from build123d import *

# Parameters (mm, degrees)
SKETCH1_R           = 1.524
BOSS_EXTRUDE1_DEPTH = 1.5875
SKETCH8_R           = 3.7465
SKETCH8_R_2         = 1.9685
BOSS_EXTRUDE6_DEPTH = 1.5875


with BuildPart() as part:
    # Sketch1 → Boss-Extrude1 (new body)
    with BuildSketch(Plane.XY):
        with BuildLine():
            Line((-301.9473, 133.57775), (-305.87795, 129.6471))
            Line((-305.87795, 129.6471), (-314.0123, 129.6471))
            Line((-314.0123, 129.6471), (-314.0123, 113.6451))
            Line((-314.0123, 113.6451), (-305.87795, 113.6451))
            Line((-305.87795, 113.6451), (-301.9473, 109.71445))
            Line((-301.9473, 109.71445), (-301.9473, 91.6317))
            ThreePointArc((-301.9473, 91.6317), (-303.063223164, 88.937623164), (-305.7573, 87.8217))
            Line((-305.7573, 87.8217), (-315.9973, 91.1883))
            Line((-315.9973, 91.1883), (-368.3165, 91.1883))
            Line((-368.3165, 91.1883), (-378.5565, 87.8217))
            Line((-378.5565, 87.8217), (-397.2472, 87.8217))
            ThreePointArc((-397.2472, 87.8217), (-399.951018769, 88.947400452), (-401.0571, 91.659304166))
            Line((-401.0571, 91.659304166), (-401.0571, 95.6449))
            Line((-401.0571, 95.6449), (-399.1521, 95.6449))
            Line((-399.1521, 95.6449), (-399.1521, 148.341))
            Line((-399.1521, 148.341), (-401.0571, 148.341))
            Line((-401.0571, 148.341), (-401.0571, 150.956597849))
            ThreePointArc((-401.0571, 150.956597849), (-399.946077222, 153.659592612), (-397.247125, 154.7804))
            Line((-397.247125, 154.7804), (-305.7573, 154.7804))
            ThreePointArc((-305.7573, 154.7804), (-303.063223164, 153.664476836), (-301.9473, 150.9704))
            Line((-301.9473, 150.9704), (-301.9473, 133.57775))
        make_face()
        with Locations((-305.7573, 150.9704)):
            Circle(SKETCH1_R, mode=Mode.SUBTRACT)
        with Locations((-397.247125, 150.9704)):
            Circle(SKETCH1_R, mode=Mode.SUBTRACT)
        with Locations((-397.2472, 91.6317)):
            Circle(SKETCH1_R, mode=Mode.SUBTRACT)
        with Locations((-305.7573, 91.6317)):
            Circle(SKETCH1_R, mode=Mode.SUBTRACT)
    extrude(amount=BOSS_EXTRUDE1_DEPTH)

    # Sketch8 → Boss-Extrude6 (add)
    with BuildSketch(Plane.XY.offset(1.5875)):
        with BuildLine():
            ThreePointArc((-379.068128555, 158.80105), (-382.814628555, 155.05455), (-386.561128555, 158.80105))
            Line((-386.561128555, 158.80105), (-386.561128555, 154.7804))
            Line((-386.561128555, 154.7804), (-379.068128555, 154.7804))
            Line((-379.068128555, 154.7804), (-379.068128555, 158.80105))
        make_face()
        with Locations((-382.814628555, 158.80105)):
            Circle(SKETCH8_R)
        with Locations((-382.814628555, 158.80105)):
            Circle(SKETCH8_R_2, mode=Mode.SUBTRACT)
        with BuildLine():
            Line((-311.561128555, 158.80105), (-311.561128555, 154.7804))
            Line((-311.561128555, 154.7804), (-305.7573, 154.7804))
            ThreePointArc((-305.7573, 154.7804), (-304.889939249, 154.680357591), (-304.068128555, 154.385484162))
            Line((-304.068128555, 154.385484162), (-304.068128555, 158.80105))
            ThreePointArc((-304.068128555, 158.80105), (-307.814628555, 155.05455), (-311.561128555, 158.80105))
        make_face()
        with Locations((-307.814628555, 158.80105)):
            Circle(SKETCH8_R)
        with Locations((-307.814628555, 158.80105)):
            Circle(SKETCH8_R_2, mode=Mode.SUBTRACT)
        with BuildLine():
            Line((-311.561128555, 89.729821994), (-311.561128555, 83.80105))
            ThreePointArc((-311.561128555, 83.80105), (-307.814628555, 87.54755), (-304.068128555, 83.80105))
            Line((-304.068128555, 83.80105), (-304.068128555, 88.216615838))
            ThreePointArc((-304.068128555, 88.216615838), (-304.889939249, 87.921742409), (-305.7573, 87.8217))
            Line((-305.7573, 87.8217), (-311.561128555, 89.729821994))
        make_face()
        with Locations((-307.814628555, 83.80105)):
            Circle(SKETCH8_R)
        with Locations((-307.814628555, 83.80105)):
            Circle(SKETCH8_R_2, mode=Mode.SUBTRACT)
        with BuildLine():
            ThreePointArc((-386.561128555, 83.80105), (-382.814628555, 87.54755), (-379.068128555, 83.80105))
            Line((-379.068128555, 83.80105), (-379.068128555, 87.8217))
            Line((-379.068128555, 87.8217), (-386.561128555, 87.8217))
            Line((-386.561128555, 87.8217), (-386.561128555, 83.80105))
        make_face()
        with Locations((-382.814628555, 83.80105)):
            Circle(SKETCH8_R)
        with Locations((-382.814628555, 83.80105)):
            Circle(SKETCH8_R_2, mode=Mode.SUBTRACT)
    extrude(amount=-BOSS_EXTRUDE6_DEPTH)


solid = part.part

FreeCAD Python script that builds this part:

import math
import FreeCAD as App
import Part
import Sketcher
Q = App.Units.Quantity

doc = App.newDocument("Part")
body = doc.addObject("PartDesign::Body", "Body")

# Sketch on XY plane
sketch1 = doc.addObject("Sketcher::SketchObject", "Sketch")
body.addObject(sketch1)
sketch1.AttachmentSupport = (doc.XY_Plane, [""])
sketch1.MapMode = "FlatFace"
sketch1.addGeometry([
    Part.LineSegment(App.Vector(-305.87795, 129.6471, 0), App.Vector(-301.9473, 133.57775, 0)),  # 0
    Part.LineSegment(App.Vector(-301.9473, 133.57775, 0), App.Vector(-301.9473, 150.9704, 0)),  # 1
    Part.ArcOfCircle(Part.Circle(App.Vector(-305.7573, 150.9704, 0), App.Vector(0, 0, 1), 3.81), math.radians(0), math.radians(90)),  # 2
    Part.LineSegment(App.Vector(-305.7573, 154.7804, 0), App.Vector(-397.247125, 154.7804, 0)),  # 3
    Part.ArcOfCircle(Part.Circle(App.Vector(-397.247125, 150.9704, 0), App.Vector(0, 0, 1), 3.81), math.radians(90), math.radians(180.207561)),  # 4
    Part.LineSegment(App.Vector(-401.0571, 150.956598, 0), App.Vector(-401.0571, 148.341, 0)),  # 5
    Part.LineSegment(App.Vector(-401.0571, 148.341, 0), App.Vector(-399.1521, 148.341, 0)),  # 6
    Part.LineSegment(App.Vector(-399.1521, 148.341, 0), App.Vector(-399.1521, 95.6449, 0)),  # 7
    Part.LineSegment(App.Vector(-399.1521, 95.6449, 0), App.Vector(-401.0571, 95.6449, 0)),  # 8
    Part.LineSegment(App.Vector(-401.0571, 95.6449, 0), App.Vector(-401.0571, 91.659304, 0)),  # 9
    Part.ArcOfCircle(Part.Circle(App.Vector(-397.2472, 91.6317, 0), App.Vector(0, 0, 1), 3.81), math.radians(179.584878), math.radians(270)),  # 10
    Part.LineSegment(App.Vector(-397.2472, 87.8217, 0), App.Vector(-378.5565, 87.8217, 0)),  # 11
    Part.LineSegment(App.Vector(-378.5565, 87.8217, 0), App.Vector(-368.3165, 91.1883, 0)),  # 12
    Part.LineSegment(App.Vector(-368.3165, 91.1883, 0), App.Vector(-315.9973, 91.1883, 0)),  # 13
    Part.LineSegment(App.Vector(-315.9973, 91.1883, 0), App.Vector(-305.7573, 87.8217, 0)),  # 14
    Part.ArcOfCircle(Part.Circle(App.Vector(-305.7573, 91.6317, 0), App.Vector(0, 0, 1), 3.81), math.radians(-90), math.radians(0)),  # 15
    Part.LineSegment(App.Vector(-301.9473, 91.6317, 0), App.Vector(-301.9473, 109.71445, 0)),  # 16
    Part.LineSegment(App.Vector(-301.9473, 109.71445, 0), App.Vector(-305.87795, 113.6451, 0)),  # 17
    Part.LineSegment(App.Vector(-305.87795, 113.6451, 0), App.Vector(-314.0123, 113.6451, 0)),  # 18
    Part.LineSegment(App.Vector(-314.0123, 113.6451, 0), App.Vector(-314.0123, 129.6471, 0)),  # 19
    Part.LineSegment(App.Vector(-314.0123, 129.6471, 0), App.Vector(-305.87795, 129.6471, 0)),  # 20
    Part.Circle(App.Vector(-305.7573, 91.6317, 0), App.Vector(0, 0, 1), 1.524),  # 21
    Part.Circle(App.Vector(-397.2472, 91.6317, 0), App.Vector(0, 0, 1), 1.524),  # 22
    Part.Circle(App.Vector(-305.7573, 150.9704, 0), App.Vector(0, 0, 1), 1.524),  # 23
    Part.Circle(App.Vector(-397.247125, 150.9704, 0), App.Vector(0, 0, 1), 1.524),  # 24
], False)
sketch1.addConstraint([
    Sketcher.Constraint("Coincident", 0, 2, 1, 1),
    Sketcher.Constraint("Tangent", 1, 2, 2, 1),
    Sketcher.Constraint("Tangent", 2, 2, 3, 1),
    Sketcher.Constraint("Tangent", 3, 2, 4, 1),
    Sketcher.Constraint("Coincident", 4, 2, 5, 1),
    Sketcher.Constraint("Coincident", 5, 2, 6, 1),
    Sketcher.Constraint("Coincident", 6, 2, 7, 1),
    Sketcher.Constraint("Coincident", 7, 2, 8, 1),
    Sketcher.Constraint("Coincident", 8, 2, 9, 1),
    Sketcher.Constraint("Coincident", 9, 2, 10, 1),
    Sketcher.Constraint("Tangent", 10, 2, 11, 1),
    Sketcher.Constraint("Coincident", 11, 2, 12, 1),
    Sketcher.Constraint("Coincident", 12, 2, 13, 1),
    Sketcher.Constraint("Coincident", 13, 2, 14, 1),
    Sketcher.Constraint("Coincident", 14, 2, 15, 1),
    Sketcher.Constraint("Tangent", 15, 2, 16, 1),
    Sketcher.Constraint("Coincident", 16, 2, 17, 1),
    Sketcher.Constraint("Coincident", 17, 2, 18, 1),
    Sketcher.Constraint("Coincident", 18, 2, 19, 1),
    Sketcher.Constraint("Coincident", 19, 2, 20, 1),
    Sketcher.Constraint("Coincident", 20, 2, 0, 1),
    Sketcher.Constraint("Vertical", 1),
    Sketcher.Constraint("Horizontal", 3),
    Sketcher.Constraint("Vertical", 5),
    Sketcher.Constraint("Horizontal", 6),
    Sketcher.Constraint("Vertical", 7),
    Sketcher.Constraint("Horizontal", 8),
    Sketcher.Constraint("Vertical", 9),
    Sketcher.Constraint("Horizontal", 11),
    Sketcher.Constraint("Horizontal", 13),
    Sketcher.Constraint("Vertical", 16),
    Sketcher.Constraint("Horizontal", 18),
    Sketcher.Constraint("Vertical", 19),
    Sketcher.Constraint("Horizontal", 20),
    Sketcher.Constraint("Coincident", 21, 3, 15, 3),
    Sketcher.Constraint("Coincident", 22, 3, 10, 3),
    Sketcher.Constraint("Coincident", 23, 3, 2, 3),
    Sketcher.Constraint("Coincident", 24, 3, 4, 3),
    Sketcher.Constraint("Equal", 2, 4),
    Sketcher.Constraint("Equal", 4, 10),
    Sketcher.Constraint("Equal", 10, 15),
    Sketcher.Constraint("Equal", 21, 22),
    Sketcher.Constraint("Equal", 22, 23),
    Sketcher.Constraint("Equal", 23, 24),
    Sketcher.Constraint("Perpendicular", 0, 17),
    Sketcher.Constraint("Horizontal", 10, 3, 15, 3),
    Sketcher.Constraint("Vertical", 2, 3, 15, 3),
    Sketcher.Constraint("Vertical", 5, 2, 8, 2),
    Sketcher.Constraint("Vertical", 2, 2, 14, 2),
    Sketcher.Constraint("Vertical", 17, 2, 20, 2),
    Sketcher.Constraint("Equal", 12, 14),
    Sketcher.Constraint("Equal", 0, 17),
    Sketcher.Constraint("Diameter", 21, Q("0.12 in")),
    Sketcher.Constraint("Radius", 2, Q("0.15 in")),
    Sketcher.Constraint("DistanceY", 19, 1, 19, 2, Q("0.63 in")),
    Sketcher.Constraint("DistanceX", 6, 1, 6, 2, Q("0.075 in")),
    Sketcher.Constraint("DistanceY", 10, 3, 7, 2, Q("0.158 in")),
    Sketcher.Constraint("DistanceX", 7, 2, 12, 2, Q("1.214 in")),
    Sketcher.Constraint("DistanceX", 18, 2, 16, 2, Q("0.475 in")),
    Sketcher.Constraint("DistanceX", 11, 1, 11, 2, Q("18.6907 mm")),
    Sketcher.Constraint("DistanceX", 13, 1, 13, 2, Q("52.3192 mm")),
    Sketcher.Constraint("DistanceY", 7, 2, 7, 1, Q("52.6961 mm")),
    Sketcher.Constraint("DistanceY", 19, 2, 2, 3, Q("0.8395 in")),
    Sketcher.Constraint("DistanceX", 18, 2, 18, 1, Q("8.13435 mm")),
    Sketcher.Constraint("DistanceY", 16, 1, 16, 2, Q("18.08275 mm")),
    Sketcher.Constraint("DistanceX", 2, 3, -1, 1, Q("305.7573 mm")),
    Sketcher.Constraint("DistanceY", -1, 1, 2, 3, Q("150.9704 mm")),
    Sketcher.Constraint("DistanceX", 10, 3, -1, 1, Q("397.2472 mm")),
    Sketcher.Constraint("DistanceY", -1, 1, 12, 2, Q("91.1883 mm")),
    Sketcher.Constraint("DistanceX", 3, 2, 3, 1, Q("91.489825 mm")),
])
pad1 = doc.addObject("PartDesign::Pad", "Pad")
body.addObject(pad1)
pad1.Profile = sketch1
pad1.Length = Q("0.0625 in")

# Sketch on XY plane
sketch2 = doc.addObject("Sketcher::SketchObject", "Sketch001")
body.addObject(sketch2)
sketch2.AttachmentSupport = (doc.XY_Plane, [""])
sketch2.MapMode = "FlatFace"
sketch2.AttachmentOffset = App.Placement(App.Vector(0, 0, 0.0625 * 25.4), App.Rotation())
sketch2.addGeometry([
    Part.LineSegment(App.Vector(-386.6, 158.8, 0), App.Vector(-386.6, 154.8, 0)),  # 0
    Part.LineSegment(App.Vector(-386.6, 154.8, 0), App.Vector(-379.1, 154.8, 0)),  # 1
    Part.LineSegment(App.Vector(-379.1, 154.8, 0), App.Vector(-379.1, 158.8, 0)),  # 2
    Part.ArcOfCircle(Part.Circle(App.Vector(-382.8, 158.8, 0), App.Vector(0, 0, 1), 3.7), math.radians(0), math.radians(180)),  # 3
    Part.Circle(App.Vector(-382.8, 158.8, 0), App.Vector(0, 0, 1), 2),  # 4
    Part.LineSegment(App.Vector(-311.6, 158.8, 0), App.Vector(-311.6, 154.8, 0)),  # 5
    Part.LineSegment(App.Vector(-311.6, 154.8, 0), App.Vector(-305.8, 154.8, 0)),  # 6
    Part.ArcOfCircle(Part.Circle(App.Vector(-305.8, 151, 0), App.Vector(0, 0, 1), 3.8), math.radians(64), math.radians(90)),  # 7
    Part.LineSegment(App.Vector(-304.1, 154.4, 0), App.Vector(-304.1, 158.8, 0)),  # 8
    Part.ArcOfCircle(Part.Circle(App.Vector(-307.8, 158.8, 0), App.Vector(0, 0, 1), 3.7), math.radians(0), math.radians(180)),  # 9
    Part.Circle(App.Vector(-307.8, 158.8, 0), App.Vector(0, 0, 1), 2),  # 10
    Part.LineSegment(App.Vector(-311.6, 89.7, 0), App.Vector(-311.6, 83.8, 0)),  # 11
    Part.ArcOfCircle(Part.Circle(App.Vector(-307.8, 83.8, 0), App.Vector(0, 0, 1), 3.7), math.radians(180), math.radians(360)),  # 12
    Part.LineSegment(App.Vector(-304.1, 83.8, 0), App.Vector(-304.1, 88.2, 0)),  # 13
    Part.ArcOfCircle(Part.Circle(App.Vector(-305.8, 91.6, 0), App.Vector(0, 0, 1), 3.8), math.radians(-90), math.radians(-64)),  # 14
    Part.LineSegment(App.Vector(-305.8, 87.8, 0), App.Vector(-311.6, 89.7, 0)),  # 15
    Part.Circle(App.Vector(-307.8, 83.8, 0), App.Vector(0, 0, 1), 2),  # 16
    Part.LineSegment(App.Vector(-379.1, 83.8, 0), App.Vector(-379.1, 87.8, 0)),  # 17
    Part.LineSegment(App.Vector(-379.1, 87.8, 0), App.Vector(-386.6, 87.8, 0)),  # 18
    Part.LineSegment(App.Vector(-386.6, 87.8, 0), App.Vector(-386.6, 83.8, 0)),  # 19
    Part.ArcOfCircle(Part.Circle(App.Vector(-382.8, 83.8, 0), App.Vector(0, 0, 1), 3.7), math.radians(180), math.radians(360)),  # 20
    Part.Circle(App.Vector(-382.8, 83.8, 0), App.Vector(0, 0, 1), 2),  # 21
], False)
sketch2.addConstraint([
    Sketcher.Constraint("Coincident", 0, 2, 1, 1),
    Sketcher.Constraint("Coincident", 1, 2, 2, 1),
    Sketcher.Constraint("Tangent", 2, 2, 3, 1),
    Sketcher.Constraint("Tangent", 3, 2, 0, 1),
    Sketcher.Constraint("Coincident", 5, 2, 6, 1),
    Sketcher.Constraint("Tangent", 6, 2, 7, 2),
    Sketcher.Constraint("Coincident", 7, 1, 8, 1),
    Sketcher.Constraint("Tangent", 8, 2, 9, 1),
    Sketcher.Constraint("Tangent", 9, 2, 5, 1),
    Sketcher.Constraint("Tangent", 11, 2, 12, 1),
    Sketcher.Constraint("Tangent", 12, 2, 13, 1),
    Sketcher.Constraint("Coincident", 13, 2, 14, 2),
    Sketcher.Constraint("Coincident", 14, 1, 15, 1),
    Sketcher.Constraint("Coincident", 15, 2, 11, 1),
    Sketcher.Constraint("Coincident", 17, 2, 18, 1),
    Sketcher.Constraint("Coincident", 18, 2, 19, 1),
    Sketcher.Constraint("Tangent", 19, 2, 20, 1),
    Sketcher.Constraint("Tangent", 20, 2, 17, 1),
    Sketcher.Constraint("Vertical", 0),
    Sketcher.Constraint("Horizontal", 1),
    Sketcher.Constraint("Vertical", 2),
    Sketcher.Constraint("Vertical", 5),
    Sketcher.Constraint("Horizontal", 6),
    Sketcher.Constraint("Vertical", 8),
    Sketcher.Constraint("Vertical", 11),
    Sketcher.Constraint("Vertical", 13),
    Sketcher.Constraint("Vertical", 17),
    Sketcher.Constraint("Horizontal", 18),
    Sketcher.Constraint("Vertical", 19),
    Sketcher.Constraint("Coincident", 4, 3, 3, 3),
    Sketcher.Constraint("Coincident", 10, 3, 9, 3),
    Sketcher.Constraint("Coincident", 16, 3, 12, 3),
    Sketcher.Constraint("Coincident", 21, 3, 20, 3),
    Sketcher.Constraint("Equal", 3, 9),
    Sketcher.Constraint("Equal", 4, 10),
    Sketcher.Constraint("Equal", 9, 12),
    Sketcher.Constraint("Equal", 7, 14),
    Sketcher.Constraint("Equal", 10, 16),
    Sketcher.Constraint("Equal", 12, 20),
    Sketcher.Constraint("Equal", 16, 21),
    Sketcher.Constraint("Horizontal", 4, 3, 9, 3),
    Sketcher.Constraint("Horizontal", 16, 3, 20, 3),
    Sketcher.Constraint("Horizontal", 1, 2, 5, 2),
    Sketcher.Constraint("Horizontal", 14, 1, 17, 2),
    Sketcher.Constraint("Vertical", 10, 3, 12, 3),
    Sketcher.Constraint("Vertical", 7, 3, 14, 3),
    Sketcher.Constraint("Vertical", 4, 3, 20, 3),
    Sketcher.Constraint("Vertical", 6, 2, 14, 1),
    Sketcher.Constraint("Equal", 8, 13),
    Sketcher.Constraint("Radius", 7, Q("0.15 in")),
    Sketcher.Constraint("Diameter", 4, Q("0.155 in")),
    Sketcher.Constraint("Radius", 3, Q("0.1475 in")),
    Sketcher.Constraint("DistanceX", 6, 1, 6, 2, Q("5.803829 mm")),
    Sketcher.Constraint("DistanceY", 0, 2, 0, 1, Q("4.02065 mm")),
    Sketcher.Constraint("DistanceY", 11, 2, 11, 1, Q("5.928772 mm")),
    Sketcher.Constraint("DistanceX", 7, 3, -1, 1, Q("305.7573 mm")),
    Sketcher.Constraint("DistanceY", -1, 1, 7, 3, Q("150.9704 mm")),
    Sketcher.Constraint("DistanceY", -1, 1, 14, 3, Q("91.6317 mm")),
    Sketcher.Constraint("DistanceX", 3, 3, 9, 3, Q("75 mm")),
])
pad2 = doc.addObject("PartDesign::Pad", "Pad001")
body.addObject(pad2)
pad2.Profile = sketch2
pad2.Length = Q("0.0625 in")
pad2.Reversed = True

doc.recompute()
